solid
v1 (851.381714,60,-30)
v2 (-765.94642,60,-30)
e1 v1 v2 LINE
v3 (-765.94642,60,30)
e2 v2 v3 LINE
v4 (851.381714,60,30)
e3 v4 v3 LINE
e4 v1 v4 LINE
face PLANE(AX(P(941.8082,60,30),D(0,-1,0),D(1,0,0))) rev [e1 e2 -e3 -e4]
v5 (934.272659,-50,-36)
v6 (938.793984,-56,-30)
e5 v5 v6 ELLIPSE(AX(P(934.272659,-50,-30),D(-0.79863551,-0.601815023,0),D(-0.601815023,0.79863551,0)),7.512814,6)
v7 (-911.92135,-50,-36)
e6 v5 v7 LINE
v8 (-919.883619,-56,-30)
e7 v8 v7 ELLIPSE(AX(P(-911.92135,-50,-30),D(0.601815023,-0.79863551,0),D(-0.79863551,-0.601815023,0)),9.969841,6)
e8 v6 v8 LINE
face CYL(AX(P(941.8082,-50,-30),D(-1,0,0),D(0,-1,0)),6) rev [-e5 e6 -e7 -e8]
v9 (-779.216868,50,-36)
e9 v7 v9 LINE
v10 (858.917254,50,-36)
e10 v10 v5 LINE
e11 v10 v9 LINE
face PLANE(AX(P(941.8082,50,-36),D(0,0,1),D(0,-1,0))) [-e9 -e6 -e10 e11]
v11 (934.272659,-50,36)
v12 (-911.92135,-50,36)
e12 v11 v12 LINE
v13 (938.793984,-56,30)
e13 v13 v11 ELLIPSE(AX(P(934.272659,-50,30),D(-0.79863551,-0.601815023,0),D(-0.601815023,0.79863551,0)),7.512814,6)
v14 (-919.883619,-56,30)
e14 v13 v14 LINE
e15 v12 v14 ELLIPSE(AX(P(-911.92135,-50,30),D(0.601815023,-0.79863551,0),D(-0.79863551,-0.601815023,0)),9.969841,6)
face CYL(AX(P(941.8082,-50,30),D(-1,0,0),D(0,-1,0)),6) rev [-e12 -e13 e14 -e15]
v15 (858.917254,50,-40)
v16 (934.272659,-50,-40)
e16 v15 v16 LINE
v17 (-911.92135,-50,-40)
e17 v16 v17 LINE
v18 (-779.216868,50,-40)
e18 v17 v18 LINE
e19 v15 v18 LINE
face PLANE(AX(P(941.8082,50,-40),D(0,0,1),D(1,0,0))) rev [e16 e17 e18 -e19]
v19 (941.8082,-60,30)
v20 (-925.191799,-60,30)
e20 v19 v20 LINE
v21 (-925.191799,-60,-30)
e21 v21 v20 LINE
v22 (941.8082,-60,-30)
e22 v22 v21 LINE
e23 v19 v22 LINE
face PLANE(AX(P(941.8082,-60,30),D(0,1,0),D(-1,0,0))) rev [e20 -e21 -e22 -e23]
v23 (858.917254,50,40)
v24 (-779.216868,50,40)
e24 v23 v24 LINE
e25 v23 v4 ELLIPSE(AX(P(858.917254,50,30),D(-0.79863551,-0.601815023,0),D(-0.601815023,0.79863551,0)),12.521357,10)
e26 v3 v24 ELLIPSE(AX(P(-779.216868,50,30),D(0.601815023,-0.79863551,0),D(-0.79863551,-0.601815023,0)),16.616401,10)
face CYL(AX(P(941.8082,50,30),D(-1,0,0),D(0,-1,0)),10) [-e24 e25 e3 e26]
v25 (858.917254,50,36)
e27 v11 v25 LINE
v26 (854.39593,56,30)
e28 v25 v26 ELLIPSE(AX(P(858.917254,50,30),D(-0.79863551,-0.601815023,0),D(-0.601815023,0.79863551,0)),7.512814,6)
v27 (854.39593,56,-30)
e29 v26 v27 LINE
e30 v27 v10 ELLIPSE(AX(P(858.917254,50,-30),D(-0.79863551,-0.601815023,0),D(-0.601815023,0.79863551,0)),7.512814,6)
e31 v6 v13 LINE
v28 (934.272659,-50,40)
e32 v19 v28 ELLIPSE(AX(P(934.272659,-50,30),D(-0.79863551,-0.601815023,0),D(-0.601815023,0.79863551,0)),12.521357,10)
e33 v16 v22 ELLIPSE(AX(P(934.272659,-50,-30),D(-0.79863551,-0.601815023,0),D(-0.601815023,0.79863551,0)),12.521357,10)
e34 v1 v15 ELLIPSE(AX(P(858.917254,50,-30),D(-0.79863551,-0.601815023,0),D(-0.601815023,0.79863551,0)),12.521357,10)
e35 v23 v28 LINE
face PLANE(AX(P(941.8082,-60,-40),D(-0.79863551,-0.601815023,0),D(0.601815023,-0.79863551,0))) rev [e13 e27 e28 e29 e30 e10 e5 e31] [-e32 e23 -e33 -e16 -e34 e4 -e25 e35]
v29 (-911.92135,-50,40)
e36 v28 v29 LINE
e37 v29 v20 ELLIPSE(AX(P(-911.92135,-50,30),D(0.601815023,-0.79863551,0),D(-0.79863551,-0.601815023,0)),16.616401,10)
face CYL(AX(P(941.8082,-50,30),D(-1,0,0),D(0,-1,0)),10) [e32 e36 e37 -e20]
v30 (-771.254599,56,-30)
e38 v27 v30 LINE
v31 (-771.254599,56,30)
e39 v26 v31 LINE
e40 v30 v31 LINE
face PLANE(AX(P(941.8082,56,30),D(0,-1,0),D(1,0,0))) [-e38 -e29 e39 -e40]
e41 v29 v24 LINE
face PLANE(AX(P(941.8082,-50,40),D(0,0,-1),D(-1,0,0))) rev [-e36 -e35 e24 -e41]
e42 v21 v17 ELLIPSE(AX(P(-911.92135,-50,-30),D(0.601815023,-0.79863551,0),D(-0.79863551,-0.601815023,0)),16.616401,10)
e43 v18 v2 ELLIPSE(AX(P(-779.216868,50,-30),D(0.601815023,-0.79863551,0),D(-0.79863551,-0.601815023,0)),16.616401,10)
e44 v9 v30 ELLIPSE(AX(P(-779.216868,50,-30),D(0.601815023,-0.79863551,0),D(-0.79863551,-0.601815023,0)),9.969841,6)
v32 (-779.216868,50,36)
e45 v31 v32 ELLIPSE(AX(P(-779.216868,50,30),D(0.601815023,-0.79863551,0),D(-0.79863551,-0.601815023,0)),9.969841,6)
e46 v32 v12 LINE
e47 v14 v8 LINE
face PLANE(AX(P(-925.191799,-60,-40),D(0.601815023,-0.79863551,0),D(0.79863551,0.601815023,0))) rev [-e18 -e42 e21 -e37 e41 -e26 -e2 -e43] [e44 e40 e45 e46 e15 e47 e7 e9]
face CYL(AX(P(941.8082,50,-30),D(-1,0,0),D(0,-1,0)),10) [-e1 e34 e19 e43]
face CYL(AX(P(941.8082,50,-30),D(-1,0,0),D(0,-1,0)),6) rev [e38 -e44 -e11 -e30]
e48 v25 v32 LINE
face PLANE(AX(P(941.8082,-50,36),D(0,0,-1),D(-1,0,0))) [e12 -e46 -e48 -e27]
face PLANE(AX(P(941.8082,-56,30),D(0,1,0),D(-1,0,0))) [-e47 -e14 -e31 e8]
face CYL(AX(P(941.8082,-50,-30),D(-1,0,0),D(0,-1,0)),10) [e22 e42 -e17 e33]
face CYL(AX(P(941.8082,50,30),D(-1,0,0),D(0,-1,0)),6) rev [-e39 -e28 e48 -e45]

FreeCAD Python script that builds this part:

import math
import FreeCAD as App
import Part
import Sketcher
from FreeCAD import Vector
Q = App.Units.Quantity


def add_polygon(sketch, points):
    """Adds a closed chain of lines whose ends are joined by coincident constraints."""
    first, n = sketch.GeometryCount, len(points)
    for a, b in zip(points, points[1:] + points[:1]):
        sketch.addGeometry(Part.LineSegment(App.Vector(*a, 0), App.Vector(*b, 0)), False)
    for i in range(n):
        sketch.addConstraint(Sketcher.Constraint("Coincident", first + i, 2, first + (i + 1) % n, 1))

doc = App.newDocument("Part")
params = doc.addObject("Spreadsheet::Sheet", "Params")
for row, (alias, value) in enumerate([
    ("sketch1_radius", "10 mm"),
    ("sketch1_radius2", "6 mm"),
    ("sketch1_width", "100 mm"),
    ("sketch1_height", "60 mm"),
    ("pad1_length", "1883.6164 mm"),
    ("sketch2_height", "120 mm"),
], start=1):
    params.set(f"A{row}", alias)
    params.set(f"B{row}", "=" + value)
    params.setAlias(f"B{row}", alias)

body = doc.addObject("PartDesign::Body", "Body")

sketch1 = doc.addObject("Sketcher::SketchObject", "Sketch")
body.addObject(sketch1)
sketch1.AttachmentSupport = (doc.YZ_Plane, [""])
sketch1.MapMode = "FlatFace"
sketch1.AttachmentOffset = App.Placement(Vector(0, 0, -941.8082), App.Rotation())
sketch1.addGeometry(Part.LineSegment(Vector(50, 40, 0), Vector(-50, 40, 0)), False)
sketch1.addGeometry(Part.ArcOfCircle(Part.Circle(Vector(-50, 30, 0), Vector(0, 0, 1), 10), math.radians(90), math.radians(180)), False)
sketch1.addGeometry(Part.LineSegment(Vector(-60, 30, 0), Vector(-60, -30, 0)), False)
sketch1.addGeometry(Part.ArcOfCircle(Part.Circle(Vector(-50, -30, 0), Vector(0, 0, 1), 10), math.radians(180), math.radians(270)), False)
sketch1.addGeometry(Part.LineSegment(Vector(-50, -40, 0), Vector(50, -40, 0)), False)
sketch1.addGeometry(Part.ArcOfCircle(Part.Circle(Vector(50, -30, 0), Vector(0, 0, 1), 10), math.radians(-90), math.radians(0)), False)
sketch1.addGeometry(Part.LineSegment(Vector(60, -30, 0), Vector(60, 30, 0)), False)
sketch1.addGeometry(Part.ArcOfCircle(Part.Circle(Vector(50, 30, 0), Vector(0, 0, 1), 10), math.radians(0), math.radians(90)), False)
sketch1.addGeometry(Part.LineSegment(Vector(-50, 36, 0), Vector(50, 36, 0)), False)
sketch1.addGeometry(Part.ArcOfCircle(Part.Circle(Vector(50, 30, 0), Vector(0, 0, 1), 6), math.radians(0), math.radians(90)), False)
sketch1.addGeometry(Part.LineSegment(Vector(56, 30, 0), Vector(56, -30, 0)), False)
sketch1.addGeometry(Part.ArcOfCircle(Part.Circle(Vector(50, -30, 0), Vector(0, 0, 1), 6), math.radians(-90), math.radians(0)), False)
sketch1.addGeometry(Part.LineSegment(Vector(50, -36, 0), Vector(-50, -36, 0)), False)
sketch1.addGeometry(Part.ArcOfCircle(Part.Circle(Vector(-50, -30, 0), Vector(0, 0, 1), 6), math.radians(180), math.radians(270)), False)
sketch1.addGeometry(Part.LineSegment(Vector(-56, -30, 0), Vector(-56, 30, 0)), False)
sketch1.addGeometry(Part.ArcOfCircle(Part.Circle(Vector(-50, 30, 0), Vector(0, 0, 1), 6), math.radians(90), math.radians(180)), False)
sketch1.addConstraint(Sketcher.Constraint("Tangent", 0, 2, 1, 1))
sketch1.addConstraint(Sketcher.Constraint("Tangent", 1, 2, 2, 1))
sketch1.addConstraint(Sketcher.Constraint("Tangent", 2, 2, 3, 1))
sketch1.addConstraint(Sketcher.Constraint("Tangent", 3, 2, 4, 1))
sketch1.addConstraint(Sketcher.Constraint("Tangent", 4, 2, 5, 1))
sketch1.addConstraint(Sketcher.Constraint("Tangent", 5, 2, 6, 1))
sketch1.addConstraint(Sketcher.Constraint("Tangent", 6, 2, 7, 1))
sketch1.addConstraint(Sketcher.Constraint("Tangent", 7, 2, 0, 1))
sketch1.addConstraint(Sketcher.Constraint("Tangent", 8, 2, 9, 2))
sketch1.addConstraint(Sketcher.Constraint("Tangent", 9, 1, 10, 1))
sketch1.addConstraint(Sketcher.Constraint("Tangent", 10, 2, 11, 2))
sketch1.addConstraint(Sketcher.Constraint("Tangent", 11, 1, 12, 1))
sketch1.addConstraint(Sketcher.Constraint("Tangent", 12, 2, 13, 2))
sketch1.addConstraint(Sketcher.Constraint("Tangent", 13, 1, 14, 1))
sketch1.addConstraint(Sketcher.Constraint("Tangent", 14, 2, 15, 2))
sketch1.addConstraint(Sketcher.Constraint("Tangent", 15, 1, 8, 1))
sketch1.addConstraint(Sketcher.Constraint("Horizontal", 0))
sketch1.addConstraint(Sketcher.Constraint("Vertical", 2))
sketch1.addConstraint(Sketcher.Constraint("Horizontal", 4))
sketch1.addConstraint(Sketcher.Constraint("Vertical", 6))
sketch1.addConstraint(Sketcher.Constraint("Horizontal", 8))
sketch1.addConstraint(Sketcher.Constraint("Vertical", 10))
sketch1.addConstraint(Sketcher.Constraint("Horizontal", 12))
sketch1.addConstraint(Sketcher.Constraint("Vertical", 14))
sketch1.addConstraint(Sketcher.Constraint("Coincident", 9, 3, 7, 3))
sketch1.addConstraint(Sketcher.Constraint("Coincident", 11, 3, 5, 3))
sketch1.addConstraint(Sketcher.Constraint("Coincident", 13, 3, 3, 3))
sketch1.addConstraint(Sketcher.Constraint("Equal", 1, 3))
sketch1.addConstraint(Sketcher.Constraint("Equal", 3, 5))
sketch1.addConstraint(Sketcher.Constraint("Equal", 5, 7))
sketch1.addConstraint(Sketcher.Constraint("Equal", 13, 15))
sketch1.addConstraint(Sketcher.Constraint("Symmetric", 1, 3, 5, 3, -1, 1))
sketch1.addConstraint(Sketcher.Constraint("Radius", 1, Q("10 mm")))
sketch1.addConstraint(Sketcher.Constraint("Radius", 9, Q("6 mm")))
sketch1.addConstraint(Sketcher.Constraint("DistanceX", 0, 2, 0, 1, Q("100 mm")))
sketch1.addConstraint(Sketcher.Constraint("DistanceY", 2, 2, 2, 1, Q("60 mm")))
sketch1.setExpression("Constraints[32]", "Params.sketch1_radius")
sketch1.setExpression("Constraints[33]", "Params.sketch1_radius2")
sketch1.setExpression("Constraints[34]", "Params.sketch1_width")
sketch1.setExpression("Constraints[35]", "Params.sketch1_height")
pad1 = doc.addObject("PartDesign::Pad", "Pad")
body.addObject(pad1)
pad1.Profile = sketch1
pad1.setExpression("Length", "Params.pad1_length")

sketch2 = doc.addObject("Sketcher::SketchObject", "Sketch001")
body.addObject(sketch2)
sketch2.AttachmentSupport = (doc.XY_Plane, [""])
sketch2.MapMode = "FlatFace"
sketch2.AttachmentOffset = App.Placement(Vector(0, 0, 40), App.Rotation())
add_polygon(sketch2, [(851, 60), (942, -60), (942, 60)])
add_polygon(sketch2, [(-942, -60), (-783, 60), (-942, 60)])
sketch2.addConstraint(Sketcher.Constraint("Vertical", 1))
sketch2.addConstraint(Sketcher.Constraint("Horizontal", 2))
sketch2.addConstraint(Sketcher.Constraint("Horizontal", 4))
sketch2.addConstraint(Sketcher.Constraint("Vertical", 5))
sketch2.addConstraint(Sketcher.Constraint("Symmetric", 0, 2, 4, 2, -1, 1))
sketch2.addConstraint(Sketcher.Constraint("Perpendicular", 0, 3))
sketch2.addConstraint(Sketcher.Constraint("Horizontal", 2, 2, 3, 2))
sketch2.addConstraint(Sketcher.Constraint("Horizontal", 0, 2, 5, 2))
sketch2.addConstraint(Sketcher.Constraint("DistanceY", 1, 1, 1, 2, Q("120 mm")))
sketch2.addConstraint(Sketcher.Constraint("Angle", 0, Q("-53 deg")))
sketch2.addConstraint(Sketcher.Constraint("DistanceX", -1, 1, 0, 2, Q("941.8082 mm")))
sketch2.setExpression("Constraints[14]", "Params.sketch2_height")
pocket1 = doc.addObject("PartDesign::Pocket", "Pocket")
body.addObject(pocket1)
pocket1.Profile = sketch2
pocket1.Type = "ThroughAll"

sketch3 = doc.addObject("Sketcher::SketchObject", "Sketch002")
body.addObject(sketch3)
sketch3.AttachmentSupport = (doc.XY_Plane, [""])
sketch3.MapMode = "FlatFace"
sketch3.AttachmentOffset = App.Placement(Vector(0, 0, 40), App.Rotation())
add_polygon(sketch3, [(-1042, -60), (-925, -60), (-766, 60), (-883, 60)])
sketch3.addConstraint(Sketcher.Constraint("Horizontal", 0))
sketch3.addConstraint(Sketcher.Constraint("Horizontal", 2))
sketch3.addConstraint(Sketcher.Constraint("Parallel", 1, 3))
sketch3.addConstraint(Sketcher.Constraint("Angle", 1, Q("37 deg")))
sketch3.addConstraint(Sketcher.Constraint("DistanceY", 0, 2, -1, 1, Q("60 mm")))
sketch3.addConstraint(Sketcher.Constraint("DistanceY", -1, 1, 1, 2, Q("60 mm")))
sketch3.addConstraint(Sketcher.Constraint("DistanceX", 0, 2, -1, 1, Q("925.191799 mm")))
sketch3.addConstraint(Sketcher.Constraint("DistanceX", 0, 1, 0, 2, Q("116.983517 mm")))
pocket2 = doc.addObject("PartDesign::Pocket", "Pocket001")
body.addObject(pocket2)
pocket2.Profile = sketch3
pocket2.Type = "ThroughAll"

doc.recompute()
